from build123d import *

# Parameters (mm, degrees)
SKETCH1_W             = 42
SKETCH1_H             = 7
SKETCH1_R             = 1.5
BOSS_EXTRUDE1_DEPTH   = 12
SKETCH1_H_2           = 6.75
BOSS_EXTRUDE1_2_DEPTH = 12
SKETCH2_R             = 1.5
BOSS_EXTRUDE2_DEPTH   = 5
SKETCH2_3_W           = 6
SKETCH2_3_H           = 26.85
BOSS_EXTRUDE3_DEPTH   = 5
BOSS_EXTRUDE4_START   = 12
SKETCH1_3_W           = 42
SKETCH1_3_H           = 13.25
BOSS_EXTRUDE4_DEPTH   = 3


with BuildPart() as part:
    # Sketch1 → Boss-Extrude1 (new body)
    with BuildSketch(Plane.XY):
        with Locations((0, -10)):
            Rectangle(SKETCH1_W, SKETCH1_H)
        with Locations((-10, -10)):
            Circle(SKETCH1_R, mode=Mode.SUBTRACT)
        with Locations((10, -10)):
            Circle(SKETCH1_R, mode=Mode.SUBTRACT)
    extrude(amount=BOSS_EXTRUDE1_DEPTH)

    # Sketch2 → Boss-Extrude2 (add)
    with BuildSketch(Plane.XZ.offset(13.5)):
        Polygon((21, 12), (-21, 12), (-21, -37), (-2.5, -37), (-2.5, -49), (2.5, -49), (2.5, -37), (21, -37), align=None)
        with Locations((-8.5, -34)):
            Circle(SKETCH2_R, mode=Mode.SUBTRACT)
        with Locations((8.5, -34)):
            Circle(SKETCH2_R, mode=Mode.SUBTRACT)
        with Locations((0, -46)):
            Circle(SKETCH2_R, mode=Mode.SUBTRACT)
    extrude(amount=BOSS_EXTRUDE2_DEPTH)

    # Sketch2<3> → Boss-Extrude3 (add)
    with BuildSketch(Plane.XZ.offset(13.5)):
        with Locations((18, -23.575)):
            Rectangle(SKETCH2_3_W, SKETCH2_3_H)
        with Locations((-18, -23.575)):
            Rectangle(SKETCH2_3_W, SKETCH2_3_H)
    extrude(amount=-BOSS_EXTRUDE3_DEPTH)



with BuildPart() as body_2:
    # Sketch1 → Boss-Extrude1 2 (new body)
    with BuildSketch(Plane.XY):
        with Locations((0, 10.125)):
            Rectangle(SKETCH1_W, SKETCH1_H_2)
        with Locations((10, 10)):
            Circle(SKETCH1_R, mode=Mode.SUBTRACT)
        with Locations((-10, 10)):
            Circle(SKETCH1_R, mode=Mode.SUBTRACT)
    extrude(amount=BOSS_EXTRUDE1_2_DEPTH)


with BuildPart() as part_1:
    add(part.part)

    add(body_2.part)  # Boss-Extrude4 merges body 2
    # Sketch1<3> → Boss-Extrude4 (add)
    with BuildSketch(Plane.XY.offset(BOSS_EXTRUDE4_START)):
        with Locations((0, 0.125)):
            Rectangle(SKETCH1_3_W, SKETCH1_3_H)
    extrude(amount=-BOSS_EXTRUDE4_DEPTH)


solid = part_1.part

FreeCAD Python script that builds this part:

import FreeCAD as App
import Part
import Sketcher
from FreeCAD import Vector


def add_polygon(sketch, points):
    """Adds a closed chain of lines whose ends are joined by coincident constraints."""
    first, n = sketch.GeometryCount, len(points)
    for a, b in zip(points, points[1:] + points[:1]):
        sketch.addGeometry(Part.LineSegment(App.Vector(*a, 0), App.Vector(*b, 0)), False)
    for i in range(n):
        sketch.addConstraint(Sketcher.Constraint("Coincident", first + i, 2, first + (i + 1) % n, 1))

doc = App.newDocument("Part")
body = doc.addObject("PartDesign::Body", "Body")

sketch1 = body.newObject("Sketcher::SketchObject", "Sketch")
sketch1.AttachmentSupport = (doc.getObject("XY_Plane"), [""])
sketch1.MapMode = "FlatFace"
add_polygon(sketch1, [(-21, -6.5), (-21, -13.5), (21, -13.5), (21, -6.5)])
sketch1.addGeometry(Part.Circle(Vector(-10, -10, 0), Vector(0, 0, 1), 1.5), False)
sketch1.addGeometry(Part.Circle(Vector(10, -10, 0), Vector(0, 0, 1), 1.5), False)
sketch1.addConstraint([
    Sketcher.Constraint("Vertical", 0),
    Sketcher.Constraint("Horizontal", 1),
    Sketcher.Constraint("Vertical", 2),
    Sketcher.Constraint("Horizontal", 3),
    Sketcher.Constraint("Equal", 4, 5),
    Sketcher.Constraint("Symmetric", 4, 3, 5, 3, -2),
    Sketcher.Constraint("Diameter", 4, 3.0),
    Sketcher.Constraint("DistanceX", 1, 1, 1, 2, 42.0),
    Sketcher.Constraint("DistanceY", 0, 2, 0, 1, 7.0),
    Sketcher.Constraint("DistanceX", 4, 3, -1, 1, 10.0),
    Sketcher.Constraint("DistanceY", 4, 3, -1, 1, 10.0),
    Sketcher.Constraint("DistanceX", 0, 2, -1, 1, 21.0),
    Sketcher.Constraint("DistanceY", 0, 2, -1, 1, 13.5),
])
pad1 = body.newObject("PartDesign::Pad", "Pad")
pad1.Profile = sketch1
pad1.Length = 12

sketch2 = body.newObject("Sketcher::SketchObject", "Sketch001")
sketch2.AttachmentSupport = (doc.getObject("XZ_Plane"), [""])
sketch2.MapMode = "FlatFace"
sketch2.AttachmentOffset = App.Placement(Vector(0, 0, 13.5), App.Rotation())
add_polygon(sketch2, [(21, 12), (-21, 12), (-21, -37), (-2.5, -37), (-2.5, -49), (2.5, -49), (2.5, -37), (21, -37)])
sketch2.addGeometry(Part.Circle(Vector(0, -46, 0), Vector(0, 0, 1), 1.5), False)
sketch2.addGeometry(Part.Circle(Vector(-8.5, -34, 0), Vector(0, 0, 1), 1.5), False)
sketch2.addGeometry(Part.Circle(Vector(8.5, -34, 0), Vector(0, 0, 1), 1.5), False)
sketch2.addConstraint([
    Sketcher.Constraint("Horizontal", 0),
    Sketcher.Constraint("Vertical", 1),
    Sketcher.Constraint("Horizontal", 2),
    Sketcher.Constraint("Vertical", 3),
    Sketcher.Constraint("Horizontal", 4),
    Sketcher.Constraint("Vertical", 5),
    Sketcher.Constraint("Horizontal", 6),
    Sketcher.Constraint("Vertical", 7),
    Sketcher.Constraint("Equal", 8, 9),
    Sketcher.Constraint("Equal", 9, 10),
    Sketcher.Constraint("Symmetric", 9, 3, 10, 3, -2),
    Sketcher.Constraint("Symmetric", 2, 2, 5, 2, -2),
    Sketcher.Constraint("PointOnObject", 8, 3, -2),
    Sketcher.Constraint("Equal", 2, 6),
    Sketcher.Constraint("Diameter", 8, 3.0),
    Sketcher.Constraint("DistanceX", 0, 2, 0, 1, 42.0),
    Sketcher.Constraint("DistanceX", 4, 1, 4, 2, 5.0),
    Sketcher.Constraint("DistanceY", 1, 2, 1, 1, 49.0),
    Sketcher.Constraint("DistanceY", 3, 2, 3, 1, 12.0),
    Sketcher.Constraint("DistanceY", 8, 3, -1, 1, 46.0),
    Sketcher.Constraint("DistanceY", 9, 3, -1, 1, 34.0),
    Sketcher.Constraint("DistanceY", -1, 1, 0, 2, 12.0),
    Sketcher.Constraint("DistanceX", 9, 3, 10, 3, 17.0),
])
pad2 = body.newObject("PartDesign::Pad", "Pad001")
pad2.Profile = sketch2
pad2.Length = 5

sketch3 = body.newObject("Sketcher::SketchObject", "Sketch002")
sketch3.AttachmentSupport = (doc.getObject("XZ_Plane"), [""])
sketch3.MapMode = "FlatFace"
sketch3.AttachmentOffset = App.Placement(Vector(0, 0, 13.5), App.Rotation())
add_polygon(sketch3, [(15, -10), (15, -37), (21, -37), (21, -10)])
add_polygon(sketch3, [(-21, -10), (-21, -37), (-15, -37), (-15, -10)])
sketch3.addConstraint([
    Sketcher.Constraint("Vertical", 0),
    Sketcher.Constraint("Horizontal", 1),
    Sketcher.Constraint("Vertical", 2),
    Sketcher.Constraint("Horizontal", 3),
    Sketcher.Constraint("Vertical", 4),
    Sketcher.Constraint("Horizontal", 5),
    Sketcher.Constraint("Vertical", 6),
    Sketcher.Constraint("Horizontal", 7),
    Sketcher.Constraint("Symmetric", 1, 2, 4, 2, -2),
    Sketcher.Constraint("Symmetric", 3, 2, 6, 2, -2),
    Sketcher.Constraint("DistanceX", 1, 1, 1, 2, 6.0),
    Sketcher.Constraint("DistanceX", -1, 1, 0, 2, 15.0),
    Sketcher.Constraint("DistanceY", 0, 2, -1, 1, 37.0),
    Sketcher.Constraint("DistanceY", 0, 2, 0, 1, 26.85),
])
pad3 = body.newObject("PartDesign::Pad", "Pad002")
pad3.Profile = sketch3
pad3.Length = 5
pad3.Reversed = True
body2 = doc.addObject("PartDesign::Body", "Body001")

sketch4 = body2.newObject("Sketcher::SketchObject", "Sketch003")
sketch4.AttachmentSupport = (doc.getObject("XY_Plane001"), [""])
sketch4.MapMode = "FlatFace"
add_polygon(sketch4, [(-21, 13.5), (-21, 6.8), (21, 6.8), (21, 13.5)])
sketch4.addGeometry(Part.Circle(Vector(-10, 10, 0), Vector(0, 0, 1), 1.5), False)
sketch4.addGeometry(Part.Circle(Vector(10, 10, 0), Vector(0, 0, 1), 1.5), False)
sketch4.addConstraint([
    Sketcher.Constraint("Vertical", 0),
    Sketcher.Constraint("Horizontal", 1),
    Sketcher.Constraint("Vertical", 2),
    Sketcher.Constraint("Horizontal", 3),
    Sketcher.Constraint("Equal", 4, 5),
    Sketcher.Constraint("Symmetric", 4, 3, 5, 3, -2),
    Sketcher.Constraint("Diameter", 4, 3.0),
    Sketcher.Constraint("DistanceX", 1, 1, 1, 2, 42.0),
    Sketcher.Constraint("DistanceX", 4, 3, -1, 1, 10.0),
    Sketcher.Constraint("DistanceY", -1, 1, 4, 3, 10.0),
    Sketcher.Constraint("DistanceX", 0, 2, -1, 1, 21.0),
    Sketcher.Constraint("DistanceY", 0, 2, 0, 1, 6.75),
    Sketcher.Constraint("DistanceY", -1, 1, 2, 2, 13.5),
])
pad4 = body2.newObject("PartDesign::Pad", "Pad003")
pad4.Profile = sketch4
pad4.Length = 12
body.AllowCompound = True
doc.recompute()

boolean = body.newObject("PartDesign::Boolean", "Boolean")
boolean.Type = "Fuse"
boolean.addObjects([body2])

sketch5 = body.newObject("Sketcher::SketchObject", "Sketch004")
sketch5.AttachmentSupport = (doc.getObject("XY_Plane"), [""])
sketch5.MapMode = "FlatFace"
sketch5.AttachmentOffset = App.Placement(Vector(0, 0, 12), App.Rotation())
add_polygon(sketch5, [(-21, 7), (-21, -6), (21, -6), (21, 7)])
sketch5.addConstraint([
    Sketcher.Constraint("Vertical", 0),
    Sketcher.Constraint("Horizontal", 1),
    Sketcher.Constraint("Vertical", 2),
    Sketcher.Constraint("Horizontal", 3),
    Sketcher.Constraint("DistanceX", 1, 1, 1, 2, 42.0),
    Sketcher.Constraint("DistanceX", 0, 2, -1, 1, 21.0),
    Sketcher.Constraint("DistanceY", 0, 2, 0, 1, 13.25),
    Sketcher.Constraint("DistanceY", 0, 2, -1, 1, 6.5),
])
pad5 = body.newObject("PartDesign::Pad", "Pad004")
pad5.Profile = sketch5
pad5.Length = 3
pad5.Reversed = True

doc.recompute()
